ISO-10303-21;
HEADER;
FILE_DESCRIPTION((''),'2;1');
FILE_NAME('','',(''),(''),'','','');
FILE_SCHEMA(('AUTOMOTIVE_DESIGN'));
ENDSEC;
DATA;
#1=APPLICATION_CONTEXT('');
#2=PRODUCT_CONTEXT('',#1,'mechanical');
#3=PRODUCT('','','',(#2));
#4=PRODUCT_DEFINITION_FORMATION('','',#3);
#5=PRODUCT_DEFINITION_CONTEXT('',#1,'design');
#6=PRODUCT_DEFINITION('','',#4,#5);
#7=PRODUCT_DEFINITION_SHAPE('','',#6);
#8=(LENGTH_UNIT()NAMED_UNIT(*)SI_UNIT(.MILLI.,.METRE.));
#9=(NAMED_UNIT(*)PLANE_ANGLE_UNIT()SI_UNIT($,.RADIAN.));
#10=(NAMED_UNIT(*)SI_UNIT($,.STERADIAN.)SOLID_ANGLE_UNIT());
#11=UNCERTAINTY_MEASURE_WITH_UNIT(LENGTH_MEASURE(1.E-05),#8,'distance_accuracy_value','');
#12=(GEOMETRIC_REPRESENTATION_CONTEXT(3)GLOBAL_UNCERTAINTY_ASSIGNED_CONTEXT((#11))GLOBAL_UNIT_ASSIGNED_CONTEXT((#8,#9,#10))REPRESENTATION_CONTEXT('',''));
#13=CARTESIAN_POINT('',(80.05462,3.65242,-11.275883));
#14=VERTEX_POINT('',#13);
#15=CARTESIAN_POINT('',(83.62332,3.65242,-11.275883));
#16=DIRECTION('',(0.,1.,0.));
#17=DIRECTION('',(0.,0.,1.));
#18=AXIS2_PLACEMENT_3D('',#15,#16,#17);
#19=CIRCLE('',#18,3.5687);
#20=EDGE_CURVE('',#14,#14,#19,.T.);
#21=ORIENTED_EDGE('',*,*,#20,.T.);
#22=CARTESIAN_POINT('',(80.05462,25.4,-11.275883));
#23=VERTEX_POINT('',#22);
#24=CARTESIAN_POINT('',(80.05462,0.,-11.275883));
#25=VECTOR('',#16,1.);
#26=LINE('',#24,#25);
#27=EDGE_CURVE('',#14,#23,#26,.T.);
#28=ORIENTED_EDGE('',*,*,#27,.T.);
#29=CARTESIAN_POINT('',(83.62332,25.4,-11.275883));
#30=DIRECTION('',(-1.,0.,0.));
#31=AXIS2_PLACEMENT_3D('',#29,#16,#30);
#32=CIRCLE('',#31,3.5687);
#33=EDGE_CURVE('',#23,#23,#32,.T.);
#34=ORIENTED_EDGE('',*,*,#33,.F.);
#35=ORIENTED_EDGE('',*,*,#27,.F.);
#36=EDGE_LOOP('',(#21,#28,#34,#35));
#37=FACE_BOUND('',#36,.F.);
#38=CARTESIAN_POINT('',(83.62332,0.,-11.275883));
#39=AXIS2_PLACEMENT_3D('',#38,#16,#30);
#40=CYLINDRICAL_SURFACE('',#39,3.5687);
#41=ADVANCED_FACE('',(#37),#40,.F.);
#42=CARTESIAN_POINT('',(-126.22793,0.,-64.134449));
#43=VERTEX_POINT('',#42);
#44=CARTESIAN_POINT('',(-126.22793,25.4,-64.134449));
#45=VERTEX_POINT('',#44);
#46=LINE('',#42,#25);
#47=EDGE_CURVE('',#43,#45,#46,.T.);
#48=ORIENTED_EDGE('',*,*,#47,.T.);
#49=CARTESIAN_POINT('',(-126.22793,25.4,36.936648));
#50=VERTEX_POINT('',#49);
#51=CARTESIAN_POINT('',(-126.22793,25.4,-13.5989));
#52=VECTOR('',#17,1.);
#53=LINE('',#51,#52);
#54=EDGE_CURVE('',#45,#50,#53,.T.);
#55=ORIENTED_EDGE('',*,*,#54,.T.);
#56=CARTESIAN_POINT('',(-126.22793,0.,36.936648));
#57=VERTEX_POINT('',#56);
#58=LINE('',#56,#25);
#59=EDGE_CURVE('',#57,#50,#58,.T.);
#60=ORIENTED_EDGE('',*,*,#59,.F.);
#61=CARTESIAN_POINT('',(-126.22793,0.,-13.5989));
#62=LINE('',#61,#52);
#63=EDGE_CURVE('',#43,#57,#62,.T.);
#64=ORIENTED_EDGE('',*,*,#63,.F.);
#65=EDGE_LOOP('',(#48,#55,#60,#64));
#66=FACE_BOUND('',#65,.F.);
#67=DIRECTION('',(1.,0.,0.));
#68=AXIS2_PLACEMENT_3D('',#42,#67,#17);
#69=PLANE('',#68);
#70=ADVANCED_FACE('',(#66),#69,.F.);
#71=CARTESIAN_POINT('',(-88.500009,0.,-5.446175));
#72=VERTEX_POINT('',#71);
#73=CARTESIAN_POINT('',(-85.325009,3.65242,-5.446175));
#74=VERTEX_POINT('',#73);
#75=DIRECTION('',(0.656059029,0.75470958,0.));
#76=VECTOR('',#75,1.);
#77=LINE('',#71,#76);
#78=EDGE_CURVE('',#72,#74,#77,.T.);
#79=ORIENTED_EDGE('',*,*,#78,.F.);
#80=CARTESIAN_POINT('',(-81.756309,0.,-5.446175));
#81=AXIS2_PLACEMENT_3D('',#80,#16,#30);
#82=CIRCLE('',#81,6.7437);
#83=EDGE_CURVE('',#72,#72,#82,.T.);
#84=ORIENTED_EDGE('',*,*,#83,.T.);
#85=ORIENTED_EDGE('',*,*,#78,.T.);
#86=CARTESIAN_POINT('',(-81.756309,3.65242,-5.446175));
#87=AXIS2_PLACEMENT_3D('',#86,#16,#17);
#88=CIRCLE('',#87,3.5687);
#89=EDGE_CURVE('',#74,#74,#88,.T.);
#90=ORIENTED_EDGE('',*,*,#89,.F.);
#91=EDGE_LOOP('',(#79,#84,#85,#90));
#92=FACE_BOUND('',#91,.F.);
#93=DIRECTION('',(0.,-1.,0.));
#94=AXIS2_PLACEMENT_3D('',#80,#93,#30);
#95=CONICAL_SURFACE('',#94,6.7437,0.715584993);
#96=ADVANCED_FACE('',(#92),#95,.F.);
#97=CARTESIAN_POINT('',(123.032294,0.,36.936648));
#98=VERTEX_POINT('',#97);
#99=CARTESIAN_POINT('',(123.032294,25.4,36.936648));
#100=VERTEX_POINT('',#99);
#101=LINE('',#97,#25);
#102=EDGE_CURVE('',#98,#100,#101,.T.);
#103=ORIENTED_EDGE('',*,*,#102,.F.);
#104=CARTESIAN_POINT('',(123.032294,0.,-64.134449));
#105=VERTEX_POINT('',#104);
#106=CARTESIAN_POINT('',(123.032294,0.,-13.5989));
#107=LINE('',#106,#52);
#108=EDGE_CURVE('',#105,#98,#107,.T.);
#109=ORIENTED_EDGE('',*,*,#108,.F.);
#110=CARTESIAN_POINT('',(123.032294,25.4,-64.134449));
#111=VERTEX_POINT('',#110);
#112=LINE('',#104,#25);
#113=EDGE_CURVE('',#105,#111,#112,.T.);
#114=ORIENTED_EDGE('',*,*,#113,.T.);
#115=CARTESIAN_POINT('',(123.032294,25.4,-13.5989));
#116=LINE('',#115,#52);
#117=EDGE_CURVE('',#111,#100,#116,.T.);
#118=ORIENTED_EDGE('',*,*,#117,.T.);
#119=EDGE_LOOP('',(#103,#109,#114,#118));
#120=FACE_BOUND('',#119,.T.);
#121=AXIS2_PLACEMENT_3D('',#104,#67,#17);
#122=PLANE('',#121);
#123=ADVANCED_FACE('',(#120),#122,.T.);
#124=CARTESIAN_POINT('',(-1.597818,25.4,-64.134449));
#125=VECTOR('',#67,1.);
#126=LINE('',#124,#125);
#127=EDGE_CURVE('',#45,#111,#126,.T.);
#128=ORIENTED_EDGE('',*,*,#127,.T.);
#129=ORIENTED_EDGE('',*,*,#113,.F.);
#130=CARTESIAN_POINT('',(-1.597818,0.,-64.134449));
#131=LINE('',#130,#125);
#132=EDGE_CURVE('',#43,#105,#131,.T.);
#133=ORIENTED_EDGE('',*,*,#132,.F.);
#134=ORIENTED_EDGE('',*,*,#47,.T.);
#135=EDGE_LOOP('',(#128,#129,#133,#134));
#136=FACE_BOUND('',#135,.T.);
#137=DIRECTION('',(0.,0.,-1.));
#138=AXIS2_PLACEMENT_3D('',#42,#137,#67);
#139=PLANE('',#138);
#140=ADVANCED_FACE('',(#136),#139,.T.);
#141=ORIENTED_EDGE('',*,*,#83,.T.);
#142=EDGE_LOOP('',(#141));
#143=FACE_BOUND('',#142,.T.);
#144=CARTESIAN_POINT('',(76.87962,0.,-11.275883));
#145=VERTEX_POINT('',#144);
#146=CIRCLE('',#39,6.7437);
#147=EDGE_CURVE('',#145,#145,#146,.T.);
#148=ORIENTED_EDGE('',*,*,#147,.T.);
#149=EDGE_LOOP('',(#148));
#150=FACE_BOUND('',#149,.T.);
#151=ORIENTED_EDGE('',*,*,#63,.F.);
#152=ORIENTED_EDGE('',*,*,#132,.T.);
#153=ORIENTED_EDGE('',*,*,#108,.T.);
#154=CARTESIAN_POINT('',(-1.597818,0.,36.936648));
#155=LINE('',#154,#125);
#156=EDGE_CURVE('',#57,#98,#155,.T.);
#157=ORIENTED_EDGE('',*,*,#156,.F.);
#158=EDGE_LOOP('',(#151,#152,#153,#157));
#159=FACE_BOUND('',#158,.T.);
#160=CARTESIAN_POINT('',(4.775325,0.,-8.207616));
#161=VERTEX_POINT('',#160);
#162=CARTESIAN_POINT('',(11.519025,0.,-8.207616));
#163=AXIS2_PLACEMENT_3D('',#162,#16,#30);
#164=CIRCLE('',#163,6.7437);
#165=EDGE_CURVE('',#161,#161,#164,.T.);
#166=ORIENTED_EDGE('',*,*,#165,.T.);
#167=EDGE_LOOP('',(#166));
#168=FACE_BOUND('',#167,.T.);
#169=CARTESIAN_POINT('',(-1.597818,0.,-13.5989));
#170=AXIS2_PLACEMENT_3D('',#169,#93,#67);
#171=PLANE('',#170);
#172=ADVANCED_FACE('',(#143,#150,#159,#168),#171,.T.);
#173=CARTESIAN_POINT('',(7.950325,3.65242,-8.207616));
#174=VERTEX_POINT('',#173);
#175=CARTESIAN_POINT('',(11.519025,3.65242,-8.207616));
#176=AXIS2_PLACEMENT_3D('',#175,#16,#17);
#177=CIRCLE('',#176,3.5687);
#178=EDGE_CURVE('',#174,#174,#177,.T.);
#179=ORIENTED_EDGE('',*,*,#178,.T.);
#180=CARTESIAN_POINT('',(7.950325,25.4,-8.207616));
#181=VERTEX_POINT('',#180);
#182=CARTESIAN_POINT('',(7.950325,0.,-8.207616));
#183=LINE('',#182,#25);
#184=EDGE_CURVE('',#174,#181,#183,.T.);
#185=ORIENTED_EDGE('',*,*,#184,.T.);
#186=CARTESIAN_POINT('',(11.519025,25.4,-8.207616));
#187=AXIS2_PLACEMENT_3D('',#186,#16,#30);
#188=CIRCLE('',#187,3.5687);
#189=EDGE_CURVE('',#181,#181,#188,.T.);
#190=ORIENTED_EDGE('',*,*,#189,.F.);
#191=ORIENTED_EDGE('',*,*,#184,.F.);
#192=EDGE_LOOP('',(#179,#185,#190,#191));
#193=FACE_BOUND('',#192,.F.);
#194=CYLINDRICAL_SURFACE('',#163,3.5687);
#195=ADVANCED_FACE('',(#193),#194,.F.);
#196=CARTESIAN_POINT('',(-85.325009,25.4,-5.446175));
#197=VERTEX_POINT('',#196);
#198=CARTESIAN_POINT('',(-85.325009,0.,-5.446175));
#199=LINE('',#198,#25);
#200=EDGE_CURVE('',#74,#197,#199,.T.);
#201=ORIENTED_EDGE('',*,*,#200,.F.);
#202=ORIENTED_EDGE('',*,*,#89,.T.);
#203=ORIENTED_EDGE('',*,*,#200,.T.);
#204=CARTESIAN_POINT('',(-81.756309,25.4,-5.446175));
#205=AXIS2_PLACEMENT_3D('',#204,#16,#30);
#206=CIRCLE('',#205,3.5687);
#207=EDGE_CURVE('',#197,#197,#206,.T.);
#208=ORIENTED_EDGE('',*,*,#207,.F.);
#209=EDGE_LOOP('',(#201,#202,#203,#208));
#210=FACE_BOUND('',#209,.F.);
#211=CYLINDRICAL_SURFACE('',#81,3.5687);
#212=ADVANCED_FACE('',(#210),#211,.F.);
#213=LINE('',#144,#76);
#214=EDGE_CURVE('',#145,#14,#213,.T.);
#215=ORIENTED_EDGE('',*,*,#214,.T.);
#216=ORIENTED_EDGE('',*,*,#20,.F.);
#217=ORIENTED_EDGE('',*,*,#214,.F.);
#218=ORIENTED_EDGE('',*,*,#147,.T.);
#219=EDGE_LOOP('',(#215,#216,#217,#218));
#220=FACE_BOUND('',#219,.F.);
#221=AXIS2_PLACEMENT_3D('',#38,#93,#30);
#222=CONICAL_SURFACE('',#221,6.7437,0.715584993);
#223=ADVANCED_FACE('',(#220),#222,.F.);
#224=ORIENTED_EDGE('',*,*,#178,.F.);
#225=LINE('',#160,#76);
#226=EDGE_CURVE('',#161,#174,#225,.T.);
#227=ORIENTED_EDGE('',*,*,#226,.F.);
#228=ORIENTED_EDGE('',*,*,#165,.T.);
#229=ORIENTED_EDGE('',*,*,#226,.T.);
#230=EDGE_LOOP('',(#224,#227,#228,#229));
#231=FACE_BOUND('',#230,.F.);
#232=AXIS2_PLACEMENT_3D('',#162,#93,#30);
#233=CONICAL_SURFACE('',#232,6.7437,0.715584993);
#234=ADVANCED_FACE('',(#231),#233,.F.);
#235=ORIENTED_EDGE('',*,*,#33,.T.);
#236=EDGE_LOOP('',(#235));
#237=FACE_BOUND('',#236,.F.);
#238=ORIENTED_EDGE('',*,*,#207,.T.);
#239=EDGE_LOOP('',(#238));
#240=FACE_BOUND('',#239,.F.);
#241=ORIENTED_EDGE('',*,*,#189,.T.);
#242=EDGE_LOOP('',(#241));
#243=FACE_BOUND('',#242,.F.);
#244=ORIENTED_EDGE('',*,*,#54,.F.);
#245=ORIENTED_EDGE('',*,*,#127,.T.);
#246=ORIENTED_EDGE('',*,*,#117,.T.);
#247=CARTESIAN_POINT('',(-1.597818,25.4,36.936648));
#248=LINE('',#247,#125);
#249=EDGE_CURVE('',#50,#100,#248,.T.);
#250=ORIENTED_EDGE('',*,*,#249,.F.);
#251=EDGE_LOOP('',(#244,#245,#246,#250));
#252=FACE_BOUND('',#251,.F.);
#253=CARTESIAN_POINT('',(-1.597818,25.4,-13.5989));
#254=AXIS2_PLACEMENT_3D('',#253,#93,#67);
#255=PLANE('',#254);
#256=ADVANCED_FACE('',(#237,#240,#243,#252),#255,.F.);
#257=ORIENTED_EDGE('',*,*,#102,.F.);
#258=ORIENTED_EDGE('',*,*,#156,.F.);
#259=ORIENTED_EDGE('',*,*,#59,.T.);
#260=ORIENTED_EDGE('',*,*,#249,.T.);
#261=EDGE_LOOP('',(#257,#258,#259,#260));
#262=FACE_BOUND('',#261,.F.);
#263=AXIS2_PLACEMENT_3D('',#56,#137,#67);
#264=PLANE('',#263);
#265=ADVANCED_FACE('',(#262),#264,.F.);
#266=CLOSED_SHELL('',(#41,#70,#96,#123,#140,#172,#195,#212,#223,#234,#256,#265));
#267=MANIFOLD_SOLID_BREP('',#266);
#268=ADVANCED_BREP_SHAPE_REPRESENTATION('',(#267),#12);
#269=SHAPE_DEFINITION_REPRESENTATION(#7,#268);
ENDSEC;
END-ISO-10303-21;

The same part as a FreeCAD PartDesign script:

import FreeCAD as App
import Part
import Sketcher
from FreeCAD import Vector
Q = App.Units.Quantity

doc = App.newDocument("Part")
body = doc.addObject("PartDesign::Body", "Body")

# Sketch on XZ plane
sketch1 = body.newObject("Sketcher::SketchObject", "Sketch")
sketch1.AttachmentSupport = (doc.getObject("XZ_Plane"), [""])
sketch1.MapMode = "FlatFace"
sketch1.addGeometry(Part.LineSegment(Vector(-126.22793, 36.936648, 0), Vector(-126.22793, -64.134449, 0)), False)
sketch1.addGeometry(Part.LineSegment(Vector(-126.22793, -64.134449, 0), Vector(123.032294, -64.134449, 0)), False)
sketch1.addGeometry(Part.LineSegment(Vector(123.032294, -64.134449, 0), Vector(123.032294, 36.936648, 0)), False)
sketch1.addGeometry(Part.LineSegment(Vector(123.032294, 36.936648, 0), Vector(-126.22793, 36.936648, 0)), False)
sketch1.addConstraint(Sketcher.Constraint("Coincident", 0, 2, 1, 1))
sketch1.addConstraint(Sketcher.Constraint("Coincident", 1, 2, 2, 1))
sketch1.addConstraint(Sketcher.Constraint("Coincident", 2, 2, 3, 1))
sketch1.addConstraint(Sketcher.Constraint("Coincident", 3, 2, 0, 1))
sketch1.addConstraint(Sketcher.Constraint("Vertical", 0))
sketch1.addConstraint(Sketcher.Constraint("Horizontal", 1))
sketch1.addConstraint(Sketcher.Constraint("Vertical", 2))
sketch1.addConstraint(Sketcher.Constraint("Horizontal", 3))
sketch1.addConstraint(Sketcher.Constraint("DistanceX", 1, 1, 1, 2, Q("249.260224 mm")))
sketch1.addConstraint(Sketcher.Constraint("DistanceY", 0, 2, 0, 1, Q("101.071097 mm")))
sketch1.addConstraint(Sketcher.Constraint("DistanceX", 0, 2, -1, 1, Q("126.22793 mm")))
sketch1.addConstraint(Sketcher.Constraint("DistanceY", 0, 2, -1, 1, Q("64.134449 mm")))
pad1 = body.newObject("PartDesign::Pad", "Pad")
pad1.Profile = sketch1
pad1.Length = Q("1 in")
pad1.Reversed = True

# Sketch on XZ plane
sketch2 = body.newObject("Sketcher::SketchObject", "Sketch001")
sketch2.AttachmentSupport = (doc.getObject("XZ_Plane"), [""])
sketch2.MapMode = "FlatFace"
sketch2.addGeometry(Part.Circle(Vector(-81.756309, -5.446175, 0), Vector(0, 0, 1), 3.5687), False)
sketch2.addConstraint(Sketcher.Constraint("Diameter", 0, Q("0.281 in")))
sketch2.addConstraint(Sketcher.Constraint("DistanceX", 0, 3, -1, 1, Q("81.756309 mm")))
sketch2.addConstraint(Sketcher.Constraint("DistanceY", 0, 3, -1, 1, Q("5.446175 mm")))
doc.recompute()
hole = body.newObject("PartDesign::Hole", "Hole")
hole.Profile = sketch2
hole.ThreadType = "None"
hole.Diameter = Q("0.281 in")
hole.DepthType = "ThroughAll"
hole.HoleCutType = "Countersink"
hole.HoleCutDiameter = Q("0.531 in")
hole.HoleCutCountersinkAngle = 82

# Sketch on XZ plane
sketch3 = body.newObject("Sketcher::SketchObject", "Sketch002")
sketch3.AttachmentSupport = (doc.getObject("XZ_Plane"), [""])
sketch3.MapMode = "FlatFace"
sketch3.addGeometry(Part.Circle(Vector(11.519025, -8.207616, 0), Vector(0, 0, 1), 3.5687), False)
sketch3.addGeometry(Part.Circle(Vector(83.62332, -11.275883, 0), Vector(0, 0, 1), 3.5687), False)
sketch3.addConstraint(Sketcher.Constraint("Equal", 0, 1))
sketch3.addConstraint(Sketcher.Constraint("Diameter", 0, Q("0.281 in")))
sketch3.addConstraint(Sketcher.Constraint("DistanceX", -1, 1, 1, 3, Q("83.62332 mm")))
sketch3.addConstraint(Sketcher.Constraint("DistanceX", -1, 1, 0, 3, Q("11.519025 mm")))
sketch3.addConstraint(Sketcher.Constraint("DistanceY", 0, 3, -1, 1, Q("8.207616 mm")))
sketch3.addConstraint(Sketcher.Constraint("DistanceY", 1, 3, -1, 1, Q("11.275883 mm")))
doc.recompute()
hole2 = body.newObject("PartDesign::Hole", "Hole001")
hole2.Profile = sketch3
hole2.ThreadType = "None"
hole2.Diameter = Q("0.281 in")
hole2.DepthType = "ThroughAll"
hole2.HoleCutType = "Countersink"
hole2.HoleCutDiameter = Q("0.531 in")
hole2.HoleCutCountersinkAngle = 82

doc.recompute()
